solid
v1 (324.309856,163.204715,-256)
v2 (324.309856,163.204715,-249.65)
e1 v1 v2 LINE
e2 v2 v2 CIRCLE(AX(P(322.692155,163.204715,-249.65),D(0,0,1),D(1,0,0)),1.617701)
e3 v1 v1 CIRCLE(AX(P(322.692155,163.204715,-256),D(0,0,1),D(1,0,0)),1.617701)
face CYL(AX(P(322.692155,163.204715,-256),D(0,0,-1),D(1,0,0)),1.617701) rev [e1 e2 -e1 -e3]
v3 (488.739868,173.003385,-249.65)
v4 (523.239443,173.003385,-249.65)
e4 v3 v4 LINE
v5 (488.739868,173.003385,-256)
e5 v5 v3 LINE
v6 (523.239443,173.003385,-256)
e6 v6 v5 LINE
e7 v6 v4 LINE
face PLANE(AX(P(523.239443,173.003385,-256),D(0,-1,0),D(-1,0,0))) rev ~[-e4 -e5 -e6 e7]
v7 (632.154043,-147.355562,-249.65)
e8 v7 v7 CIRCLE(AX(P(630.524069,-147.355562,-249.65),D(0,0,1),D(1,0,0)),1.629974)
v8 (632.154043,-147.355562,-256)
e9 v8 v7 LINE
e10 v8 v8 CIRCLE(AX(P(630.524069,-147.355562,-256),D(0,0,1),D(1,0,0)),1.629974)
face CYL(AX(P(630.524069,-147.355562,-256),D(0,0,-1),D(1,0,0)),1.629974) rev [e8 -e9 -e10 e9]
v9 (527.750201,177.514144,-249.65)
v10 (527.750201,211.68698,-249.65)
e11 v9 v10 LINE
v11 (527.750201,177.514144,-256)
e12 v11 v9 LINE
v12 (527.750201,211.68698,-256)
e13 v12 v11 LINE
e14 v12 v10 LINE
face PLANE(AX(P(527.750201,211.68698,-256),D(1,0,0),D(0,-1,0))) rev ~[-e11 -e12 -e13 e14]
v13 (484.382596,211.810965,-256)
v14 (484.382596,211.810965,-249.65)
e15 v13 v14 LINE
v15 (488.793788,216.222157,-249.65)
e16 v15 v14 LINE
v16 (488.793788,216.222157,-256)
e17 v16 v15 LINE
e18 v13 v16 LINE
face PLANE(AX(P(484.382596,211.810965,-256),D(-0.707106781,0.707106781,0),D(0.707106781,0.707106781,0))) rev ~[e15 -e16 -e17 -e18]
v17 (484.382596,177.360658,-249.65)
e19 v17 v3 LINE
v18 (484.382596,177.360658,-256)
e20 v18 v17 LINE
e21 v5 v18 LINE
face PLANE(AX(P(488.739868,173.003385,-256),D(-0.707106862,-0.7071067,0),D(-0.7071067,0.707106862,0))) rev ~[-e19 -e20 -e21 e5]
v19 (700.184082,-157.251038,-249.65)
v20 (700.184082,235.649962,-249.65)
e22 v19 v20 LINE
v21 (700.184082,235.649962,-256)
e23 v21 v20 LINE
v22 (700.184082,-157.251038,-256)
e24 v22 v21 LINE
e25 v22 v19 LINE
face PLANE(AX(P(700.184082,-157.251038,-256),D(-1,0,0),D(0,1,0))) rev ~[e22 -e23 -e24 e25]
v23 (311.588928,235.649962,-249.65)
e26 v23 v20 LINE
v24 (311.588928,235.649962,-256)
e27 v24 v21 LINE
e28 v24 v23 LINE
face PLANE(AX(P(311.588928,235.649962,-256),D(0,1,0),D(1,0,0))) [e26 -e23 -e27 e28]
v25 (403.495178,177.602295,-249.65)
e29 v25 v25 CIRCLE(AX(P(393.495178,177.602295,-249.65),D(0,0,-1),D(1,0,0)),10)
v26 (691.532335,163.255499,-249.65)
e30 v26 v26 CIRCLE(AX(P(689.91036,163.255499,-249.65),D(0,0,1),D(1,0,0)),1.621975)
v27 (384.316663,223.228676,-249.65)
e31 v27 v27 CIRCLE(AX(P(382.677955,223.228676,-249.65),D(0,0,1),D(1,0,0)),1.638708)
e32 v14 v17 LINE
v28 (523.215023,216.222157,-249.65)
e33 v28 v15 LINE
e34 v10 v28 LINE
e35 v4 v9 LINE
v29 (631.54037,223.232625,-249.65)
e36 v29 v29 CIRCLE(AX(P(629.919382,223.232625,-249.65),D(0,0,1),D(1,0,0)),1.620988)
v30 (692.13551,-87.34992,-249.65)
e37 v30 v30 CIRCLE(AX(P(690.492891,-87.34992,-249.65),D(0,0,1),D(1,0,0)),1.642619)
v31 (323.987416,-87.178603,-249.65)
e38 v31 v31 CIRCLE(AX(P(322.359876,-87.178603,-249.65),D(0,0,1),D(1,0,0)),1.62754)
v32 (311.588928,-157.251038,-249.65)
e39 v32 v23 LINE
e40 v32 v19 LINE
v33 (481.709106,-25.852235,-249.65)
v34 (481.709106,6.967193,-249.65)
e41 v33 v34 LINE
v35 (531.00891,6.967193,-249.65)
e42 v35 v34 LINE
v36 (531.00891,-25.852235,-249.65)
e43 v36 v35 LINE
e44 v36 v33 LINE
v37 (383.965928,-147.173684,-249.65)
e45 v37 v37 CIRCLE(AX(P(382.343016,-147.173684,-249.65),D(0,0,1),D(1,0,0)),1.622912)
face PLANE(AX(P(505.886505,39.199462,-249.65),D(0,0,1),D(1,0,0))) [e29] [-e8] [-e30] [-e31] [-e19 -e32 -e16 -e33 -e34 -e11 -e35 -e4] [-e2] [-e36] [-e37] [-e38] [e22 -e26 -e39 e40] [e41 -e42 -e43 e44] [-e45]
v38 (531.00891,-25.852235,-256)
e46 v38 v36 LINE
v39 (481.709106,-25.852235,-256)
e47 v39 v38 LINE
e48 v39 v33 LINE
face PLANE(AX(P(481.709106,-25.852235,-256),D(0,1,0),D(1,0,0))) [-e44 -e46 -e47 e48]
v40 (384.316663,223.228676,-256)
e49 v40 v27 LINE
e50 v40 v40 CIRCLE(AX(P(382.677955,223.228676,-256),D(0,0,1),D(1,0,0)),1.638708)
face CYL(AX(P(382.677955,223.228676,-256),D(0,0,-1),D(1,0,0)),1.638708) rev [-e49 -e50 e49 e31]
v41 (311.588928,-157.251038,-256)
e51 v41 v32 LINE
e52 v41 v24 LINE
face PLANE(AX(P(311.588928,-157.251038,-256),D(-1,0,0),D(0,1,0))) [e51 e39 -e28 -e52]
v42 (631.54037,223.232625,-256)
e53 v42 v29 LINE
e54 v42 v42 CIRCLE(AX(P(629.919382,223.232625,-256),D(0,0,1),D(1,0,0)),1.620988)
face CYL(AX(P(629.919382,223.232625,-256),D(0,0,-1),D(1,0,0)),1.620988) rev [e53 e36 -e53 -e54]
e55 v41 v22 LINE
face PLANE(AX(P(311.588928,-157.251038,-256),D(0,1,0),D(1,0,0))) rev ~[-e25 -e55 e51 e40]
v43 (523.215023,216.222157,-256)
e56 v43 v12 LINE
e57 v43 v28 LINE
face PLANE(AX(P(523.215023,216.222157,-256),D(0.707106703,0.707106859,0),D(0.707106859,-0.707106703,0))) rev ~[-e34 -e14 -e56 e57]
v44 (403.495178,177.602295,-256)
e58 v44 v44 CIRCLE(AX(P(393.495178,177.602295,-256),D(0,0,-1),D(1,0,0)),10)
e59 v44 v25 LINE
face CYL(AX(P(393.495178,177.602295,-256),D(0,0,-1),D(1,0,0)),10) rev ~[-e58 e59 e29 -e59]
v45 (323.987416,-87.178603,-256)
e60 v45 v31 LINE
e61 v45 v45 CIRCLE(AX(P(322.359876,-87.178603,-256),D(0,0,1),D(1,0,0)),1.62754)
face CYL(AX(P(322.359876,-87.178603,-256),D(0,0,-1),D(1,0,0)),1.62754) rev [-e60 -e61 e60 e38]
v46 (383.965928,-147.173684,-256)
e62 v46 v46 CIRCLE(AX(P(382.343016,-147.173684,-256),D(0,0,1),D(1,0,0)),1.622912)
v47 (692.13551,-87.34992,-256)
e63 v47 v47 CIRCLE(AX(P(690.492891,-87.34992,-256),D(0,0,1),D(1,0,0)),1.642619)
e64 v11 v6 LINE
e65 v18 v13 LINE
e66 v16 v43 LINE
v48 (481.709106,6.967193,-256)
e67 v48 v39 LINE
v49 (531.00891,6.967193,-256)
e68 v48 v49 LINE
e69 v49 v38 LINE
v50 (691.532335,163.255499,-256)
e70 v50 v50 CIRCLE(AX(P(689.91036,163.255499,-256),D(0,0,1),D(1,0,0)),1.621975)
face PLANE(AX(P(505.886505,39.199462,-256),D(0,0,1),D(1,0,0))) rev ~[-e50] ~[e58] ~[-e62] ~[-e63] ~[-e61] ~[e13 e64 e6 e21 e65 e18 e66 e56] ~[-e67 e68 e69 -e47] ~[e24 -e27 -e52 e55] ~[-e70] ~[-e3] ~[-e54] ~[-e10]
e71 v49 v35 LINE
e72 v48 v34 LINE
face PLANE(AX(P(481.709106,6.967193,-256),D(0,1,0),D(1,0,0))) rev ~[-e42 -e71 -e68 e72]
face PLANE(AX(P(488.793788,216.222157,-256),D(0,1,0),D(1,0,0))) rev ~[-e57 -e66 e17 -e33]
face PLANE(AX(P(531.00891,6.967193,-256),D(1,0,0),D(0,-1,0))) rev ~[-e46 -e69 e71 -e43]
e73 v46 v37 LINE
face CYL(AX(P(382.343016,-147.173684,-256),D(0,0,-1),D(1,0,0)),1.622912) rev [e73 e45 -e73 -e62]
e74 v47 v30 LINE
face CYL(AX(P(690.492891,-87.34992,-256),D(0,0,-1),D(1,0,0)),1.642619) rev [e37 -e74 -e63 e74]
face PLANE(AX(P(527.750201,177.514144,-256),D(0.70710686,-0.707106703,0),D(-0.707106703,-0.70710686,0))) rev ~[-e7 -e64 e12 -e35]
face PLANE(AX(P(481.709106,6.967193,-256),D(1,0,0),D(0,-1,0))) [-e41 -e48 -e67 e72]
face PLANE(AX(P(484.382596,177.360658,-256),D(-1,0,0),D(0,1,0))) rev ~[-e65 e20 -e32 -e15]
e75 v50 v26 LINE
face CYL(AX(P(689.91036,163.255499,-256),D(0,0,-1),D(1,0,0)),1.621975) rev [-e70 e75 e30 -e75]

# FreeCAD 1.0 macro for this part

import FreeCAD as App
import Part
import Sketcher
from FreeCAD import Vector
Q = App.Units.Quantity

doc = App.newDocument("Part")
body = doc.addObject("PartDesign::Body", "Body")

sketch1 = body.newObject("Sketcher::SketchObject", "Sketch")
sketch1.AttachmentSupport = (doc.getObject("XY_Plane"), [""])
sketch1.MapMode = "FlatFace"
sketch1.AttachmentOffset = App.Placement(Vector(0, 0, -307), App.Rotation())
sketch1.addGeometry([
    Part.LineSegment(Vector(311.6, 235.6, 0), Vector(311.6, -157.3, 0)),
    Part.LineSegment(Vector(311.6, -157.3, 0), Vector(700.2, -157.3, 0)),
    Part.LineSegment(Vector(700.2, -157.3, 0), Vector(700.2, 235.6, 0)),
    Part.LineSegment(Vector(700.2, 235.6, 0), Vector(311.6, 235.6, 0)),
    Part.Circle(Vector(382.3, -147.2, 0), Vector(0, 0, 1), 1.6),
    Part.Circle(Vector(322.4, -87.2, 0), Vector(0, 0, 1), 1.6),
    Part.Circle(Vector(630.5, -147.4, 0), Vector(0, 0, 1), 1.6),
    Part.Circle(Vector(690.5, -87.3, 0), Vector(0, 0, 1), 1.6),
    Part.Circle(Vector(322.7, 163.2, 0), Vector(0, 0, 1), 1.6),
    Part.Circle(Vector(382.7, 223.2, 0), Vector(0, 0, 1), 1.6),
    Part.Circle(Vector(689.9, 163.3, 0), Vector(0, 0, 1), 1.6),
    Part.Circle(Vector(629.9, 223.2, 0), Vector(0, 0, 1), 1.6),
], False)
sketch1.addConstraint([
    Sketcher.Constraint("Coincident", 0, 2, 1, 1),
    Sketcher.Constraint("Coincident", 1, 2, 2, 1),
    Sketcher.Constraint("Coincident", 2, 2, 3, 1),
    Sketcher.Constraint("Coincident", 3, 2, 0, 1),
    Sketcher.Constraint("Vertical", 0),
    Sketcher.Constraint("Horizontal", 1),
    Sketcher.Constraint("Vertical", 2),
    Sketcher.Constraint("Horizontal", 3),
    Sketcher.Constraint("Diameter", 5, Q("3.25508 mm")),
    Sketcher.Constraint("Diameter", 6, Q("3.259948 mm")),
    Sketcher.Constraint("Diameter", 7, Q("3.285238 mm")),
    Sketcher.Constraint("Diameter", 10, Q("3.24395 mm")),
    Sketcher.Constraint("DistanceY", 0, 2, 0, 1, Q("392.901 mm")),
    Sketcher.Constraint("Diameter", 4, Q("3.245824 mm")),
    Sketcher.Constraint("Diameter", 8, Q("3.235402 mm")),
    Sketcher.Constraint("Diameter", 9, Q("3.277416 mm")),
    Sketcher.Constraint("Diameter", 11, Q("3.241976 mm")),
    Sketcher.Constraint("DistanceY", -1, 1, 10, 3, Q("163.255499 mm")),
    Sketcher.Constraint("DistanceY", 4, 3, 8, 3, Q("310.378399 mm")),
    Sketcher.Constraint("DistanceX", 8, 3, 9, 3, Q("59.9858 mm")),
    Sketcher.Constraint("DistanceX", 11, 3, 2, 2, Q("70.2647 mm")),
    Sketcher.Constraint("DistanceX", 1, 1, 1, 2, Q("388.595154 mm")),
    Sketcher.Constraint("DistanceX", -1, 1, 6, 3, Q("630.524069 mm")),
    Sketcher.Constraint("DistanceY", 6, 3, -1, 1, Q("147.355562 mm")),
    Sketcher.Constraint("DistanceX", -1, 1, 7, 3, Q("690.492891 mm")),
    Sketcher.Constraint("DistanceY", 7, 3, -1, 1, Q("87.34992 mm")),
    Sketcher.Constraint("DistanceX", -1, 1, 10, 3, Q("689.91036 mm")),
    Sketcher.Constraint("DistanceX", -1, 1, 11, 3, Q("629.919382 mm")),
    Sketcher.Constraint("DistanceY", 0, 2, -1, 1, Q("157.251038 mm")),
    Sketcher.Constraint("DistanceX", 5, 3, 4, 3, Q("59.98314 mm")),
    Sketcher.Constraint("DistanceY", 4, 3, 5, 3, Q("59.995081 mm")),
    Sketcher.Constraint("DistanceY", 6, 3, 5, 3, Q("60.176959 mm")),
    Sketcher.Constraint("DistanceX", 5, 3, 8, 3, Q("0.332279 mm")),
    Sketcher.Constraint("DistanceY", 8, 3, 9, 3, Q("60.023961 mm")),
    Sketcher.Constraint("DistanceY", 9, 3, 11, 3, Q("0.003949 mm")),
    Sketcher.Constraint("DistanceX", -1, 1, 4, 3, Q("382.343016 mm")),
])
pad1 = body.newObject("PartDesign::Pad", "Pad")
pad1.Profile = sketch1
pad1.Length = 6.35

sketch2 = body.newObject("Sketcher::SketchObject", "Sketch001")
sketch2.AttachmentSupport = (doc.getObject("XY_Plane"), [""])
sketch2.MapMode = "FlatFace"
sketch2.AttachmentOffset = App.Placement(Vector(0, 0, -307), App.Rotation())
sketch2.addGeometry([
    Part.LineSegment(Vector(484, 177, 0), Vector(484, 212, 0)),
    Part.LineSegment(Vector(484, 212, 0), Vector(489, 216, 0)),
    Part.LineSegment(Vector(489, 216, 0), Vector(523, 216, 0)),
    Part.LineSegment(Vector(523, 216, 0), Vector(528, 212, 0)),
    Part.LineSegment(Vector(528, 212, 0), Vector(528, 178, 0)),
    Part.LineSegment(Vector(528, 178, 0), Vector(523, 173, 0)),
    Part.LineSegment(Vector(523, 173, 0), Vector(489, 173, 0)),
    Part.LineSegment(Vector(489, 173, 0), Vector(484, 177, 0)),
], False)
sketch2.addConstraint([
    Sketcher.Constraint("Coincident", 0, 2, 1, 1),
    Sketcher.Constraint("Coincident", 1, 2, 2, 1),
    Sketcher.Constraint("Coincident", 2, 2, 3, 1),
    Sketcher.Constraint("Coincident", 3, 2, 4, 1),
    Sketcher.Constraint("Coincident", 4, 2, 5, 1),
    Sketcher.Constraint("Coincident", 5, 2, 6, 1),
    Sketcher.Constraint("Coincident", 6, 2, 7, 1),
    Sketcher.Constraint("Coincident", 7, 2, 0, 1),
    Sketcher.Constraint("Vertical", 0),
    Sketcher.Constraint("Horizontal", 2),
    Sketcher.Constraint("Vertical", 4),
    Sketcher.Constraint("Horizontal", 6),
    Sketcher.Constraint("Perpendicular", 1, 3),
    Sketcher.Constraint("Perpendicular", 3, 5),
    Sketcher.Constraint("Perpendicular", 5, 7),
    Sketcher.Constraint("Angle", 1, Q("45 deg")),
    Sketcher.Constraint("DistanceX", -1, 1, 3, 2, Q("527.750201 mm")),
    Sketcher.Constraint("DistanceY", 7, 2, 1, 2, Q("38.861499 mm")),
    Sketcher.Constraint("Distance", 3, Q("6.41371 mm")),
    Sketcher.Constraint("DistanceX", 2, 1, 2, 2, Q("34.421235 mm")),
    Sketcher.Constraint("DistanceX", 6, 2, 6, 1, Q("34.499575 mm")),
    Sketcher.Constraint("DistanceY", 0, 1, 0, 2, Q("34.450307 mm")),
    Sketcher.Constraint("DistanceY", 4, 2, 4, 1, Q("34.172836 mm")),
    Sketcher.Constraint("DistanceY", -1, 1, 3, 2, Q("211.68698 mm")),
])
pocket1 = body.newObject("PartDesign::Pocket", "Pocket")
pocket1.Profile = sketch2
pocket1.Length = 57
pocket1.Reversed = True

sketch3 = body.newObject("Sketcher::SketchObject", "Sketch002")
sketch3.AttachmentSupport = (doc.getObject("XY_Plane"), [""])
sketch3.MapMode = "FlatFace"
sketch3.AttachmentOffset = App.Placement(Vector(0, 0, -307), App.Rotation())
sketch3.addGeometry([
    Part.LineSegment(Vector(482, -26, 0), Vector(482, 7, 0)),
    Part.LineSegment(Vector(482, 7, 0), Vector(531, 7, 0)),
    Part.LineSegment(Vector(531, 7, 0), Vector(531, -26, 0)),
    Part.LineSegment(Vector(531, -26, 0), Vector(482, -26, 0)),
], False)
sketch3.addConstraint([
    Sketcher.Constraint("Coincident", 0, 2, 1, 1),
    Sketcher.Constraint("Coincident", 1, 2, 2, 1),
    Sketcher.Constraint("Coincident", 2, 2, 3, 1),
    Sketcher.Constraint("Coincident", 3, 2, 0, 1),
    Sketcher.Constraint("Vertical", 0),
    Sketcher.Constraint("Horizontal", 1),
    Sketcher.Constraint("Vertical", 2),
    Sketcher.Constraint("Horizontal", 3),
    Sketcher.Constraint("DistanceY", 0, 1, 0, 2, Q("32.819429 mm")),
    Sketcher.Constraint("DistanceX", 1, 1, 1, 2, Q("49.299805 mm")),
    Sketcher.Constraint("DistanceX", -1, 1, 1, 2, Q("531.00891 mm")),
    Sketcher.Constraint("DistanceY", -1, 1, 0, 2, Q("6.967193 mm")),
])
pocket2 = body.newObject("PartDesign::Pocket", "Pocket001")
pocket2.Profile = sketch3
pocket2.Length = 69
pocket2.Reversed = True

sketch4 = body.newObject("Sketcher::SketchObject", "Sketch003")
sketch4.AttachmentSupport = (doc.getObject("XY_Plane"), [""])
sketch4.MapMode = "FlatFace"
sketch4.AttachmentOffset = App.Placement(Vector(0, 0, -307), App.Rotation())
sketch4.addGeometry(Part.Circle(Vector(393, 178, 0), Vector(0, 0, 1), 10), False)
sketch4.addConstraint([
    Sketcher.Constraint("Diameter", 0, Q("20 mm")),
    Sketcher.Constraint("DistanceX", -1, 1, 0, 3, Q("393.495178 mm")),
    Sketcher.Constraint("DistanceY", -1, 1, 0, 3, Q("177.602295 mm")),
])
pocket3 = body.newObject("PartDesign::Pocket", "Pocket002")
pocket3.Profile = sketch4
pocket3.Length = 26
pocket3.Reversed = True
body2 = doc.addObject("PartDesign::Body", "Body001")
doc.recompute()

body.Placement = App.Placement(Vector(0, 0, 51), App.Rotation(Vector(0, 0, 1), 0))
boolean = body2.newObject("PartDesign::Boolean", "Boolean")
boolean.Type = "Fuse"
boolean.addObjects([body])

doc.recompute()
